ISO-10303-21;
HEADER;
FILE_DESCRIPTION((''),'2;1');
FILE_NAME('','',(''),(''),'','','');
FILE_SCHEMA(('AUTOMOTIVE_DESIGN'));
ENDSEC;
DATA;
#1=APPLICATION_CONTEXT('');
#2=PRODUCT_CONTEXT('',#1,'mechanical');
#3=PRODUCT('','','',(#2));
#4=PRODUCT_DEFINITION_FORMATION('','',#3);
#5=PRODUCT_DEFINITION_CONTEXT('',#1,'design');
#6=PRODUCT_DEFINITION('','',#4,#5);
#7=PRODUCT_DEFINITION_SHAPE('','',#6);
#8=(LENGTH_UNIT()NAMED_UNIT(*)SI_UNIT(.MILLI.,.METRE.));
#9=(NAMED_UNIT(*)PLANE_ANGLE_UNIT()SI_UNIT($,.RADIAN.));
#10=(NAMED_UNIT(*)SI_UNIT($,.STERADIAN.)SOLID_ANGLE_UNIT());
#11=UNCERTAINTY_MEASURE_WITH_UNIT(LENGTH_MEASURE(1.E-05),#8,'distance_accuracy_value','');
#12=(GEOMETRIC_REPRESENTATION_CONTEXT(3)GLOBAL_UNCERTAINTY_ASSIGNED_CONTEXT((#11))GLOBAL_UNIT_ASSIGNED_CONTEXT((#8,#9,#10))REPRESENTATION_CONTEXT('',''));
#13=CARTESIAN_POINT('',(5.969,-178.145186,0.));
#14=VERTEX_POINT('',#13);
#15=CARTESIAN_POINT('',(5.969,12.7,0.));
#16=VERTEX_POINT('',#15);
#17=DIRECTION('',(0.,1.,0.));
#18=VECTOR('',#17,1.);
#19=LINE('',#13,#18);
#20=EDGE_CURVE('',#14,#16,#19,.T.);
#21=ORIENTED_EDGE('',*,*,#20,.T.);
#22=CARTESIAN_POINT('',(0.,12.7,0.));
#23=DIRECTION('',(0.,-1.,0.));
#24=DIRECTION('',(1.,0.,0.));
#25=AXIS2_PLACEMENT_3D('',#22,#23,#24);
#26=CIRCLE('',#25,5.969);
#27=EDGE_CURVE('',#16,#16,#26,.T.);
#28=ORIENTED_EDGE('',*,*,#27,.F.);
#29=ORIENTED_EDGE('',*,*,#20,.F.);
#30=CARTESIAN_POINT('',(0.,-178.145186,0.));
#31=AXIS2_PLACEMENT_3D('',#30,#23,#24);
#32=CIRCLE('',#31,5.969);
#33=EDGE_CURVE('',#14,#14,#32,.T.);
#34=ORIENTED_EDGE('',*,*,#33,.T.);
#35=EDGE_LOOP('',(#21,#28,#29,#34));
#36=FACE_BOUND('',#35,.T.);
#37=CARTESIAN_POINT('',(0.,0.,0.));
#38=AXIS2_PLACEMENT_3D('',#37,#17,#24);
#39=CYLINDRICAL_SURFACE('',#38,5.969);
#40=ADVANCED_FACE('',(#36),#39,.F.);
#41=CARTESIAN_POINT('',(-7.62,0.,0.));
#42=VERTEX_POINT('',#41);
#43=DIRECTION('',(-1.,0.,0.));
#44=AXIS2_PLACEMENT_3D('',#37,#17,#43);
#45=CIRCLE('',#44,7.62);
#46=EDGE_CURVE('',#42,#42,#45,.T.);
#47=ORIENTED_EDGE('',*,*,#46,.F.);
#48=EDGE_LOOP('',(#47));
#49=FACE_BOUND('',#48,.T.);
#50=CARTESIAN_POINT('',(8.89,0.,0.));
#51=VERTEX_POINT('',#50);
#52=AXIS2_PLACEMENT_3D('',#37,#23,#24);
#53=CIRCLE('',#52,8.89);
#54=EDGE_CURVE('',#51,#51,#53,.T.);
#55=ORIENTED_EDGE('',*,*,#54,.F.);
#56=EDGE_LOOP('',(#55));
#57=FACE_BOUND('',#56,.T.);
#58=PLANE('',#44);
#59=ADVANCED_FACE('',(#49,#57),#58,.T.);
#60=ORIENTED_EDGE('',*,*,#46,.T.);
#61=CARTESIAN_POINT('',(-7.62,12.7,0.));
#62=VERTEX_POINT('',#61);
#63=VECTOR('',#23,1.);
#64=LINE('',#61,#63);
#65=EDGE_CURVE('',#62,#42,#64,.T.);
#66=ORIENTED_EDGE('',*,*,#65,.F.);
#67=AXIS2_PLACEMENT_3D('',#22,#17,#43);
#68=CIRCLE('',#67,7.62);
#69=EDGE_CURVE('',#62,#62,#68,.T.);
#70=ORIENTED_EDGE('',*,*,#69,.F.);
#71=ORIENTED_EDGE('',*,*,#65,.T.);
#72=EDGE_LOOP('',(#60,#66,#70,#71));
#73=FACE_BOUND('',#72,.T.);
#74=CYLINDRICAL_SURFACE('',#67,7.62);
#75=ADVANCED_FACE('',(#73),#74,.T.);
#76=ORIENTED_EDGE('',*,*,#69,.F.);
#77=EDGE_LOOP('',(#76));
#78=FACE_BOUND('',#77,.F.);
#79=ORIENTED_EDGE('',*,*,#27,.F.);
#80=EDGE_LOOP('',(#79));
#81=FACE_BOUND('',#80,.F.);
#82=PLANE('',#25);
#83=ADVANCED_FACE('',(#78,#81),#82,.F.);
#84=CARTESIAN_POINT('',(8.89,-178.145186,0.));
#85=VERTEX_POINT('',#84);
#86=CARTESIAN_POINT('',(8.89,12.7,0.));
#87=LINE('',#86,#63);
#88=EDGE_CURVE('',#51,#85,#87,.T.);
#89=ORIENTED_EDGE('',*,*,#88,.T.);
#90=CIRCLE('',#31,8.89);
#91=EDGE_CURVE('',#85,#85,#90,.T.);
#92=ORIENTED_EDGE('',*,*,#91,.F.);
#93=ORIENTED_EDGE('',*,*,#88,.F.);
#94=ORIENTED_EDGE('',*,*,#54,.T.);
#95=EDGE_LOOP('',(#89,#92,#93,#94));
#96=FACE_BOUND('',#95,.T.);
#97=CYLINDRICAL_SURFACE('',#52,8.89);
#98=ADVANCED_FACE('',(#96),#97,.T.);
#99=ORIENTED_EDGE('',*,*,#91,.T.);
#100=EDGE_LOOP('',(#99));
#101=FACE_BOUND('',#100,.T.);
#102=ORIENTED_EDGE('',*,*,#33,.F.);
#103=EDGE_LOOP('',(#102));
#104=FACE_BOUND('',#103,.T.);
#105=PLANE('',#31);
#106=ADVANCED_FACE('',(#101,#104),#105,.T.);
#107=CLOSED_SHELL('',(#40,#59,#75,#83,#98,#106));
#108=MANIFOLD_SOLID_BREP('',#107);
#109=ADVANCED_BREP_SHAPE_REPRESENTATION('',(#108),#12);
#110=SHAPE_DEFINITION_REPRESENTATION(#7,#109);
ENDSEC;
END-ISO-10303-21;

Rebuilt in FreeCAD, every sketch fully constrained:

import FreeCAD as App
import Part
import Sketcher

V = App.Vector
Q = App.Units.Quantity

doc = App.newDocument("Part")
body = doc.addObject("PartDesign::Body", "Body")

sketch1 = doc.addObject("Sketcher::SketchObject", "Sketch")
body.addObject(sketch1)
sketch1.AttachmentSupport = (doc.XZ_Plane, [""])
sketch1.MapMode = "FlatFace"
sketch1.addGeometry(Part.Circle(V(0, 0, 0), V(0, 0, 1), 9), False)
sketch1.addGeometry(Part.Circle(V(0, 0, 0), V(0, 0, 1), 6), False)
sketch1.addConstraint(Sketcher.Constraint("Coincident", 0, 3, -1, 1))
sketch1.addConstraint(Sketcher.Constraint("Coincident", 1, 3, -1, 1))
sketch1.addConstraint(Sketcher.Constraint("Diameter", 0, Q("0.7 in")))
sketch1.addConstraint(Sketcher.Constraint("Diameter", 1, Q("0.47 in")))
pad1 = doc.addObject("PartDesign::Pad", "Pad")
body.addObject(pad1)
pad1.Profile = sketch1
pad1.Type = "TwoLengths"
pad1.Length = 178.145186
pad1.Length2 = Q("0.5 in")

sketch2 = doc.addObject("Sketcher::SketchObject", "Sketch001")
body.addObject(sketch2)
sketch2.AttachmentSupport = (doc.XZ_Plane, [""])
sketch2.MapMode = "FlatFace"
sketch2.AttachmentOffset = App.Placement(V(0, 0, -0.5 * 25.4), App.Rotation())
sketch2.addGeometry(Part.Circle(V(0, 0, 0), V(0, 0, 1), 9), False)
sketch2.addGeometry(Part.Circle(V(0, 0, 0), V(0, 0, 1), 8), False)
sketch2.addConstraint(Sketcher.Constraint("Coincident", 0, 3, -1, 1))
sketch2.addConstraint(Sketcher.Constraint("Coincident", 1, 3, -1, 1))
sketch2.addConstraint(Sketcher.Constraint("Diameter", 0, Q("0.7 in")))
sketch2.addConstraint(Sketcher.Constraint("Diameter", 1, Q("0.6 in")))
pocket1 = doc.addObject("PartDesign::Pocket", "Pocket")
body.addObject(pocket1)
pocket1.Profile = sketch2
pocket1.Length = Q("0.5 in")
pocket1.Reversed = True

doc.recompute()
